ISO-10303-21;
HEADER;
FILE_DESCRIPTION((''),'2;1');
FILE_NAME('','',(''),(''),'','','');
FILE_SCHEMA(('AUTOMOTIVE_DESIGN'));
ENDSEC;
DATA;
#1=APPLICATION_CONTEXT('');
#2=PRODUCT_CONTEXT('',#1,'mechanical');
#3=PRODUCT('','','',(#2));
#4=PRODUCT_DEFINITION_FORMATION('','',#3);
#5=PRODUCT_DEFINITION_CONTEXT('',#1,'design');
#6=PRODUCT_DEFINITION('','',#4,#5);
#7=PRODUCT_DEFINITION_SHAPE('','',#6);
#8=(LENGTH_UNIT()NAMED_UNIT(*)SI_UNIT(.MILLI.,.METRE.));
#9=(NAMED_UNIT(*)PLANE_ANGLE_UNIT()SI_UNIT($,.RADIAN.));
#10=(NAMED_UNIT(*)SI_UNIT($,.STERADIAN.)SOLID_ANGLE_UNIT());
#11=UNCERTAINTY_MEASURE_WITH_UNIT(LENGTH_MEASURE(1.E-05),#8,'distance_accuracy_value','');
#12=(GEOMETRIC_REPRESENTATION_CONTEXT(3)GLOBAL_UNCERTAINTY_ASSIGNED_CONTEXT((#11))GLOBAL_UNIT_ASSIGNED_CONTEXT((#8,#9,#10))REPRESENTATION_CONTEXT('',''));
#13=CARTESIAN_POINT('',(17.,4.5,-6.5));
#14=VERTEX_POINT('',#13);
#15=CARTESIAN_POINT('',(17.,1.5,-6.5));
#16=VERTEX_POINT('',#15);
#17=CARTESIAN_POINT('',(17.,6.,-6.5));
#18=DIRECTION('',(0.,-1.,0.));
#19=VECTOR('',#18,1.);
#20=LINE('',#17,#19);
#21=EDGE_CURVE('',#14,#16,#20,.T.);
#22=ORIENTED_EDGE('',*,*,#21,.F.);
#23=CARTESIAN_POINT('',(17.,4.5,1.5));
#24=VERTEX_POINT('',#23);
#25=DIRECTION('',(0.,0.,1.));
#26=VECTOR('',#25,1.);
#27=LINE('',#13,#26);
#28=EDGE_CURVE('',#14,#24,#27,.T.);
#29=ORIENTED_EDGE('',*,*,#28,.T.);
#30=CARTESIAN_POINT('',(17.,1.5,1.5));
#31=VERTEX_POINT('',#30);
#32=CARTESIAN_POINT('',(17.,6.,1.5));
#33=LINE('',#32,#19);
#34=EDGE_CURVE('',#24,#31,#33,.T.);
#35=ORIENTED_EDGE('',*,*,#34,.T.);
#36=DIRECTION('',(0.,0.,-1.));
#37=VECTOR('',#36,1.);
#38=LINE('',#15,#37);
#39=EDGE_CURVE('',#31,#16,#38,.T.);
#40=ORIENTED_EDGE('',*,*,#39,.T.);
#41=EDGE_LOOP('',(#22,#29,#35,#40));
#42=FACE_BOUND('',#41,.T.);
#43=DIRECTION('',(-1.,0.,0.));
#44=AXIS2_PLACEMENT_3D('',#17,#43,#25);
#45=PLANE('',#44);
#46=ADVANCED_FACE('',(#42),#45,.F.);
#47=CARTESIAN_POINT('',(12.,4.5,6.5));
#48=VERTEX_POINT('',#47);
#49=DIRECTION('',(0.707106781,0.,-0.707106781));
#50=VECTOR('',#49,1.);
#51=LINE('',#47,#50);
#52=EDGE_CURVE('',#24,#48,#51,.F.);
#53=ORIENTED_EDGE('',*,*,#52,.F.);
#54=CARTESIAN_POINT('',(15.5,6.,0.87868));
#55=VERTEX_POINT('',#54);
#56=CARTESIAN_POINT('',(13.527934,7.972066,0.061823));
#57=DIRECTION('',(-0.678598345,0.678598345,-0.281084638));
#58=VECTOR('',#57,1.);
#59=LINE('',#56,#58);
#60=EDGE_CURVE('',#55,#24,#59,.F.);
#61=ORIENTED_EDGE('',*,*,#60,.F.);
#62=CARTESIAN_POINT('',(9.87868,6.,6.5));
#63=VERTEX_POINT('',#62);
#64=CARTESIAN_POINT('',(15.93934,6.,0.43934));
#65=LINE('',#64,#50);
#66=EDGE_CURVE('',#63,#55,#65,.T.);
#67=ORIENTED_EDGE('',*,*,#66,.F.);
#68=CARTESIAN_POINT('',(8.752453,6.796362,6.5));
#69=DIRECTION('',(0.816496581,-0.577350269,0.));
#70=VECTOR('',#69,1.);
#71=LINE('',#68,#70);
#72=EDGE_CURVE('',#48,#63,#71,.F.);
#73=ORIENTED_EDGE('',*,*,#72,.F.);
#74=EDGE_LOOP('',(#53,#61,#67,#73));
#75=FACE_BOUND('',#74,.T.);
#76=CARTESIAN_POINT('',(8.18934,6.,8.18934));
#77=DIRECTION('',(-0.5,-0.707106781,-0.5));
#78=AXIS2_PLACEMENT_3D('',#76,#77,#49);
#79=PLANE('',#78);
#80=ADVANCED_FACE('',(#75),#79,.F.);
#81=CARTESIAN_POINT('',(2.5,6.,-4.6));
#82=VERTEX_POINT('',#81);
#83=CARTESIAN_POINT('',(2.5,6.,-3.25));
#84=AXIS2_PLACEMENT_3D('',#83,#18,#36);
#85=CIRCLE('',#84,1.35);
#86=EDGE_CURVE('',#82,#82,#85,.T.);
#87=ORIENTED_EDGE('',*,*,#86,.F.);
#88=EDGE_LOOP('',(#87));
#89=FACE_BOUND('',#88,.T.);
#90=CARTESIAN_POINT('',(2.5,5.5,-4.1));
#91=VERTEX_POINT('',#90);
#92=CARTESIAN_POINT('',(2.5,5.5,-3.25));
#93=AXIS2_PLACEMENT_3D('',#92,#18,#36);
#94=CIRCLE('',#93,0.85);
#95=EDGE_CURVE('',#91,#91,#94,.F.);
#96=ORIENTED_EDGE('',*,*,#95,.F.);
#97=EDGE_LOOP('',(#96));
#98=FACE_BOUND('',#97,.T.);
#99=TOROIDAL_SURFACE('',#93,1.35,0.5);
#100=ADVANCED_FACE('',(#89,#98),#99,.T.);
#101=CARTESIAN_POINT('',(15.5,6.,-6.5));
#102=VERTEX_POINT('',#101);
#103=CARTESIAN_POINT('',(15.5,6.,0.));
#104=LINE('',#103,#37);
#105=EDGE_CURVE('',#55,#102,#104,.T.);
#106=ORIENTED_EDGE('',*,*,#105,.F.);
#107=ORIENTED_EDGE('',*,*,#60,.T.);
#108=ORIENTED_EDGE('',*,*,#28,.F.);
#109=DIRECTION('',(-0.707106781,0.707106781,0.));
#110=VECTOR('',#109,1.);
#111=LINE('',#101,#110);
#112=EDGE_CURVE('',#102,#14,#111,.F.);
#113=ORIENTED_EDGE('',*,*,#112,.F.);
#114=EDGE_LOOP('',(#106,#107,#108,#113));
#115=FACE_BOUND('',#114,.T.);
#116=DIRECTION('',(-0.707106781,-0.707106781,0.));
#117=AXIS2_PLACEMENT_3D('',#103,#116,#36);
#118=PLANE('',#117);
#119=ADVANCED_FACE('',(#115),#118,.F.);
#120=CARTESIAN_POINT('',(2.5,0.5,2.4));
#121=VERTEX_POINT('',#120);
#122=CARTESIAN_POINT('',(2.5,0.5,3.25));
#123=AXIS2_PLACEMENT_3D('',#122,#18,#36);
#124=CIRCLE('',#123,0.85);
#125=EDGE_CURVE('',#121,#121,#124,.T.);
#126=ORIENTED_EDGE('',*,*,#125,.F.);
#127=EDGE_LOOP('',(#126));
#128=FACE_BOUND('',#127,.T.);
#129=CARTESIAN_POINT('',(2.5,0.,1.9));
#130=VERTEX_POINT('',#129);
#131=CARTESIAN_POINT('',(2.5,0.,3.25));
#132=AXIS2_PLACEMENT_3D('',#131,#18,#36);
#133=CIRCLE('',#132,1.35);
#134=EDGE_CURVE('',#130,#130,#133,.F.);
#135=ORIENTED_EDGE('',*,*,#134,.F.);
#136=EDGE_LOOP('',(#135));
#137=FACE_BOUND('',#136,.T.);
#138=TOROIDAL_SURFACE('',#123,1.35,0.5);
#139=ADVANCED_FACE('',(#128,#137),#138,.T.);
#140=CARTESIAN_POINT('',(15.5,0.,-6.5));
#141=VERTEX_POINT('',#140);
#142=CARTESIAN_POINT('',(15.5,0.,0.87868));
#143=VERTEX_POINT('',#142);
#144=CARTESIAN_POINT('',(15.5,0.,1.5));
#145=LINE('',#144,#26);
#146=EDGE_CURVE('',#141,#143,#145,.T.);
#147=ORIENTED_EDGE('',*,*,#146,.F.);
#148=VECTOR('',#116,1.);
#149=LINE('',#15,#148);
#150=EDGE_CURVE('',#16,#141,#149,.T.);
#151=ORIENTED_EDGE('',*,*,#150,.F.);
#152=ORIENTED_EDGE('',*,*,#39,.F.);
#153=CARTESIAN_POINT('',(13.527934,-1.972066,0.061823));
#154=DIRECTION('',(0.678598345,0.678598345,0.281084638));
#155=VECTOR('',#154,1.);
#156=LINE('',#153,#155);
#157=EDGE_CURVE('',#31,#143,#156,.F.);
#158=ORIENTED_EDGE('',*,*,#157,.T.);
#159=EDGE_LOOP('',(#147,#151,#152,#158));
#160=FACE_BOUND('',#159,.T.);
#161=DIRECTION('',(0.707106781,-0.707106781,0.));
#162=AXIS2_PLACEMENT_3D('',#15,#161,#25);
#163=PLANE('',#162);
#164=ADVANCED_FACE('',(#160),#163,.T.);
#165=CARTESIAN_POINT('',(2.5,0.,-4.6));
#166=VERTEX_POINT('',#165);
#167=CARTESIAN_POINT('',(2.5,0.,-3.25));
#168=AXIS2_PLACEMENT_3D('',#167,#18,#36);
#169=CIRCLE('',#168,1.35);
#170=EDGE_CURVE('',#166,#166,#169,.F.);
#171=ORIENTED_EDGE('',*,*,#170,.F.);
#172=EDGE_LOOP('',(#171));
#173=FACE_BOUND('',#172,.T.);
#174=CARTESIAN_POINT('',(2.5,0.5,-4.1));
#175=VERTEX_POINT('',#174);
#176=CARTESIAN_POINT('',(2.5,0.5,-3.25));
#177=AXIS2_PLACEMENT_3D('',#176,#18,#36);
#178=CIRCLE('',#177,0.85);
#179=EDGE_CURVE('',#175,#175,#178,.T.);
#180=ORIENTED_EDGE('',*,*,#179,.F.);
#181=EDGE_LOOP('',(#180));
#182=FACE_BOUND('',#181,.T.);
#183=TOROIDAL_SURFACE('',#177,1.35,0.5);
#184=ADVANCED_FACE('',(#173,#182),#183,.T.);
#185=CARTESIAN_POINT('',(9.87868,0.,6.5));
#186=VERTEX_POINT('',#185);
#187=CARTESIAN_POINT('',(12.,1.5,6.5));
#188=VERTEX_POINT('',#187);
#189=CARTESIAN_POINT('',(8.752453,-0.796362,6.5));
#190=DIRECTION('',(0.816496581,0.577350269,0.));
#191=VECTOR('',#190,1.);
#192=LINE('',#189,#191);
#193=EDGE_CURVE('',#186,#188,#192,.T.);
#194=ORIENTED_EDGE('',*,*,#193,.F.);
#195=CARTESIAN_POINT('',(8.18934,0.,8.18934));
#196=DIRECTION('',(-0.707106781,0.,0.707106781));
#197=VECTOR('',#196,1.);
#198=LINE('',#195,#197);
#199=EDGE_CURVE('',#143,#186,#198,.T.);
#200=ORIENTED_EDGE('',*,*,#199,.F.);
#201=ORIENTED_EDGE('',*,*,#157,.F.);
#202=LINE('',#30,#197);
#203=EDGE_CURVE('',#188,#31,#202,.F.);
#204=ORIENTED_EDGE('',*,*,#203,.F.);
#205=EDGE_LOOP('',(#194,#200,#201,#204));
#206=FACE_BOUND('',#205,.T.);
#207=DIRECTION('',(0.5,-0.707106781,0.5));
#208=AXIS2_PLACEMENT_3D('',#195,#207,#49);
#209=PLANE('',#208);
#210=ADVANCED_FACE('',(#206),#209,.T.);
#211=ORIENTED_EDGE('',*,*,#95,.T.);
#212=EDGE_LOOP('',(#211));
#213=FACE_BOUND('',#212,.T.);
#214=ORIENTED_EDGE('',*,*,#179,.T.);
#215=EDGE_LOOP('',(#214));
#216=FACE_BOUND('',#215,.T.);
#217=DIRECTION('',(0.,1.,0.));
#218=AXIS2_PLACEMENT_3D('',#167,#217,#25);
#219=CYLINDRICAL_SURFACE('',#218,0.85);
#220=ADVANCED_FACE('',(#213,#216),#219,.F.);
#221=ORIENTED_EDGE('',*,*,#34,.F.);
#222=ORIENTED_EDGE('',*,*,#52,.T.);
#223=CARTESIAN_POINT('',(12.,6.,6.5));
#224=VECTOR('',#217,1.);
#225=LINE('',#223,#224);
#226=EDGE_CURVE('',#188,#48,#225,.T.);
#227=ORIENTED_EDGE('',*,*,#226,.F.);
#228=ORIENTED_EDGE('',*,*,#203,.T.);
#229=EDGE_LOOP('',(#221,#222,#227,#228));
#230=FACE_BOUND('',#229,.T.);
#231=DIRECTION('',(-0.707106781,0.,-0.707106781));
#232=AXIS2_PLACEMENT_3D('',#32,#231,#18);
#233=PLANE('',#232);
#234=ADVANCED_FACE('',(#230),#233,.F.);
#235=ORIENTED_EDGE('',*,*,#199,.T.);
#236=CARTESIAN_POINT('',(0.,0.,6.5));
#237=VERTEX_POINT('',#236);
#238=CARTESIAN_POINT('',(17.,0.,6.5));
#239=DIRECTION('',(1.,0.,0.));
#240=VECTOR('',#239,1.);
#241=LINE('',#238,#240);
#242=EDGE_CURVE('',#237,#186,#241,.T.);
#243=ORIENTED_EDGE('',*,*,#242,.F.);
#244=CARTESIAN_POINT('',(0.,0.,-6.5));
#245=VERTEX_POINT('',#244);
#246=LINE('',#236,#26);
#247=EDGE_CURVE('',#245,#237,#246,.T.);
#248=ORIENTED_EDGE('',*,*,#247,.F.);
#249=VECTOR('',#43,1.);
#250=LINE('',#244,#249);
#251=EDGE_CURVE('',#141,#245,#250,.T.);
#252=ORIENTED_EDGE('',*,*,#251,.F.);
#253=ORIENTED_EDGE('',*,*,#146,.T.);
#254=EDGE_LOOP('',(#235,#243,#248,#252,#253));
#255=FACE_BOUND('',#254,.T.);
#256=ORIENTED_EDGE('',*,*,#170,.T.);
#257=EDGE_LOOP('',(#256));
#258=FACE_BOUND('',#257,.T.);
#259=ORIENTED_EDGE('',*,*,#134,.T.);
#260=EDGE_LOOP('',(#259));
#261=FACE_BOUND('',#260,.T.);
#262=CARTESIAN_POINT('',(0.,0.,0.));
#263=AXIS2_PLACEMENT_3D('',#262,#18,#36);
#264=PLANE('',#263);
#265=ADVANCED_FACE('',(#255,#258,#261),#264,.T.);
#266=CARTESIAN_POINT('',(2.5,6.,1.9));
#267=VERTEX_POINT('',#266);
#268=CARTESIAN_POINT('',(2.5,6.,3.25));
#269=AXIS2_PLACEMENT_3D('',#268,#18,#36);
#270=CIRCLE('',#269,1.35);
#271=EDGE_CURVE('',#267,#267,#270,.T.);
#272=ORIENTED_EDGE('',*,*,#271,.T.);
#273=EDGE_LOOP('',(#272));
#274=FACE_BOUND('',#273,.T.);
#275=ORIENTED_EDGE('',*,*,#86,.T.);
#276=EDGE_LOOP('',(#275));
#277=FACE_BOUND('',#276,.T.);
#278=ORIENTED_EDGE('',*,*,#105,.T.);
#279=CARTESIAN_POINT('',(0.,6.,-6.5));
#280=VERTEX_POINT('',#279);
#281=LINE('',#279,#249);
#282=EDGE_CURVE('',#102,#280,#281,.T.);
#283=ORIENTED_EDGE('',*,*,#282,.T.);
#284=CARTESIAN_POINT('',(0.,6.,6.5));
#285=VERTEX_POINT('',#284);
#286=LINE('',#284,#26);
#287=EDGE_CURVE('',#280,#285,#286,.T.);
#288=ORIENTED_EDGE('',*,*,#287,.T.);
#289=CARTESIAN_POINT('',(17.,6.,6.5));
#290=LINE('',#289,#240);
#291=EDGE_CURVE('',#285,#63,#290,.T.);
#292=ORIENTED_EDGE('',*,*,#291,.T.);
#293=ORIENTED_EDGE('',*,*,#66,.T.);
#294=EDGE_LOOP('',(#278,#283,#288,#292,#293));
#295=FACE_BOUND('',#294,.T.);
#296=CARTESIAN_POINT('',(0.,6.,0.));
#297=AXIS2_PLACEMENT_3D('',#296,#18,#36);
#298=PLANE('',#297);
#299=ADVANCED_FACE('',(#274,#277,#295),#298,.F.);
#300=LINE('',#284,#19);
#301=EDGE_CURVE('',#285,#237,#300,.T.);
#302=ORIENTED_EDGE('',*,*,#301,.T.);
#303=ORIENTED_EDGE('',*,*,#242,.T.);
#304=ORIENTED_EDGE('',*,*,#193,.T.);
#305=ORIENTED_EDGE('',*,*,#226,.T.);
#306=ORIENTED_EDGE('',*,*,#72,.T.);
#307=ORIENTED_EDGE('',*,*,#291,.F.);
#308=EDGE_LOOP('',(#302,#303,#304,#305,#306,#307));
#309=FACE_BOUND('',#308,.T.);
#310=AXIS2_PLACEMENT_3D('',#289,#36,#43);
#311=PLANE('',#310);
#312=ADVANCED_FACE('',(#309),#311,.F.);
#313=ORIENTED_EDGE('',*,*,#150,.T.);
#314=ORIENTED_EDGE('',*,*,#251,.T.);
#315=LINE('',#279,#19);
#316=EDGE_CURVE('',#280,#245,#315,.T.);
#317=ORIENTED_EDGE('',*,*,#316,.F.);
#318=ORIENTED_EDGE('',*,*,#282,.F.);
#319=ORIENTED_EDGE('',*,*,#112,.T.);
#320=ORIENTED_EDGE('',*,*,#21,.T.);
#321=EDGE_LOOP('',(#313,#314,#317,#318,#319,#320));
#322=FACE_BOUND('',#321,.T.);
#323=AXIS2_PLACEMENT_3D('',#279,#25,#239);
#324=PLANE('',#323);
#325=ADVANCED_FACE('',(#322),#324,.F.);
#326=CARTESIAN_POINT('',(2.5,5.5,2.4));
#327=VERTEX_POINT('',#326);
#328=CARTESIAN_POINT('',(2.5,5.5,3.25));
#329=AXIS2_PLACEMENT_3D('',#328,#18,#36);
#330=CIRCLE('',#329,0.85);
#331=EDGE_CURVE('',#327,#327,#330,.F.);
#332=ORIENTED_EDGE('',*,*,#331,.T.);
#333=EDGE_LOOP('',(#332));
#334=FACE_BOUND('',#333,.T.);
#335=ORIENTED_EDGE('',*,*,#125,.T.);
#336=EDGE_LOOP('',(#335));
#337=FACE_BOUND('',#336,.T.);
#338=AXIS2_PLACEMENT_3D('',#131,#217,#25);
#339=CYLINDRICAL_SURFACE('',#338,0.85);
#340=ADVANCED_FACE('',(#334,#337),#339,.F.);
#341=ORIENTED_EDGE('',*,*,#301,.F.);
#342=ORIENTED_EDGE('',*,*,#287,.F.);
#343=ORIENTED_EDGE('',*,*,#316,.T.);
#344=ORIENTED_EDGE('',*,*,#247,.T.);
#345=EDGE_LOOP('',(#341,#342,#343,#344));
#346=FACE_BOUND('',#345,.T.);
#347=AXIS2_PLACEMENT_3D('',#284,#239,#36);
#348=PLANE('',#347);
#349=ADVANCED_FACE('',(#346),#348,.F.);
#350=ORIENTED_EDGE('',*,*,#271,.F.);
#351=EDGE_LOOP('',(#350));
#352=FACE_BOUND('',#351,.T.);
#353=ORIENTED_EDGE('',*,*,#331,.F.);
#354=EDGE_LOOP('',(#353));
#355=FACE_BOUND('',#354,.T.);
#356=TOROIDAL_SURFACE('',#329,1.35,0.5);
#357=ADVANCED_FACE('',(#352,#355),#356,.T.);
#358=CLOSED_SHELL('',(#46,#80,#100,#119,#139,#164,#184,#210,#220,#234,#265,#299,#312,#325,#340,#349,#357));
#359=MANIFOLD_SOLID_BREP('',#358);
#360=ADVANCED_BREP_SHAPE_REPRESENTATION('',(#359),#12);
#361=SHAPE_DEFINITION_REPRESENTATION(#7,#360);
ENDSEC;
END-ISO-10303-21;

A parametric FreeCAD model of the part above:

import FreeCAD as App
import Part
import Sketcher

V = App.Vector


def edges_at(feature, points):
    """Names of the edges that pass closest to the given points."""
    edges = feature.Shape.Edges
    near = lambda p: min(range(len(edges)), key=lambda i: edges[i].distToShape(Part.Vertex(*p))[0])
    return sorted({f"Edge{near(p) + 1}" for p in points})

doc = App.newDocument("Part")
params = doc.addObject("Spreadsheet::Sheet", "Params")
for row, (alias, value) in enumerate([
    ("sketch1_width", "17 mm"),
    ("sketch1_height", "13 mm"),
    ("pad1_length", "6 mm"),
    ("sketch2_diameter", "1.7 mm"),
    ("fillet_radius", "0.5 mm"),
    ("chamfer_size", "5 mm"),
    ("chamfer2_size", "1.5 mm"),
], start=1):
    params.set(f"A{row}", alias)
    params.set(f"B{row}", "=" + value)
    params.setAlias(f"B{row}", alias)

body = doc.addObject("PartDesign::Body", "Body")

# Sketch on XZ plane
sketch1 = body.newObject("Sketcher::SketchObject", "Sketch")
sketch1.AttachmentSupport = (doc.getObject("XZ_Plane"), [""])
sketch1.MapMode = "FlatFace"
sketch1.addGeometry(Part.LineSegment(V(0, -6.5, 0), V(0, 6.5, 0)), False)
sketch1.addGeometry(Part.LineSegment(V(0, 6.5, 0), V(17, 6.5, 0)), False)
sketch1.addGeometry(Part.LineSegment(V(17, 6.5, 0), V(17, -6.5, 0)), False)
sketch1.addGeometry(Part.LineSegment(V(17, -6.5, 0), V(0, -6.5, 0)), False)
sketch1.addConstraint(Sketcher.Constraint("Coincident", 0, 2, 1, 1))
sketch1.addConstraint(Sketcher.Constraint("Coincident", 1, 2, 2, 1))
sketch1.addConstraint(Sketcher.Constraint("Coincident", 2, 2, 3, 1))
sketch1.addConstraint(Sketcher.Constraint("Coincident", 3, 2, 0, 1))
sketch1.addConstraint(Sketcher.Constraint("Vertical", 0))
sketch1.addConstraint(Sketcher.Constraint("Horizontal", 1))
sketch1.addConstraint(Sketcher.Constraint("Vertical", 2))
sketch1.addConstraint(Sketcher.Constraint("Horizontal", 3))
sketch1.addConstraint(Sketcher.Constraint("Symmetric", 0, 2, 3, 2, -1, 1))
sketch1.addConstraint(Sketcher.Constraint("DistanceX", 1, 1, 1, 2, 17.0))
sketch1.addConstraint(Sketcher.Constraint("DistanceY", 0, 1, 0, 2, 13.0))
sketch1.setExpression("Constraints[9]", "Params.sketch1_width")
sketch1.setExpression("Constraints[10]", "Params.sketch1_height")
pad1 = body.newObject("PartDesign::Pad", "Pad")
pad1.Profile = sketch1
pad1.setExpression("Length", "Params.pad1_length")
pad1.Reversed = True

# Sketch on XZ plane
sketch2 = body.newObject("Sketcher::SketchObject", "Sketch001")
sketch2.AttachmentSupport = (doc.getObject("XZ_Plane"), [""])
sketch2.MapMode = "FlatFace"
sketch2.AttachmentOffset = App.Placement(V(0, 0, -6), App.Rotation())
sketch2.addGeometry(Part.Circle(V(2.5, -3.25, 0), V(0, 0, 1), 0.85), False)
sketch2.addGeometry(Part.Circle(V(2.5, 3.25, 0), V(0, 0, 1), 0.85), False)
sketch2.addConstraint(Sketcher.Constraint("Equal", 0, 1))
sketch2.addConstraint(Sketcher.Constraint("Symmetric", 0, 3, 1, 3, -1))
sketch2.addConstraint(Sketcher.Constraint("Diameter", 0, 1.7))
sketch2.addConstraint(Sketcher.Constraint("DistanceX", -1, 1, 0, 3, 2.5))
sketch2.addConstraint(Sketcher.Constraint("DistanceY", 0, 3, 1, 3, 6.5))
sketch2.setExpression("Constraints[2]", "Params.sketch2_diameter")
pocket1 = body.newObject("PartDesign::Pocket", "Pocket")
pocket1.Profile = sketch2
pocket1.Type = "ThroughAll"
pocket1.Midplane = True
doc.recompute()

fillet = body.newObject("PartDesign::Fillet", "Fillet")
fillet.Base = (pocket1, edges_at(pocket1, [
    (2.5, 0, -4.1),
    (2.5, 6, -4.1),
    (2.5, 0, 2.4),
    (2.5, 6, 2.4),
]))
fillet.setExpression("Radius", "Params.fillet_radius")
doc.recompute()

chamfer = body.newObject("PartDesign::Chamfer", "Chamfer")
chamfer.Base = (fillet, edges_at(fillet, [(17, 3, 6.5)]))
chamfer.setExpression("Size", "Params.chamfer_size")
doc.recompute()

chamfer2 = body.newObject("PartDesign::Chamfer", "Chamfer001")
chamfer2.Base = (chamfer, edges_at(chamfer, [
    (17, 0, -2.5),
    (17, 6, -2.5),
    (14.5, 0, 4),
    (14.5, 6, 4),
]))
chamfer2.setExpression("Size", "Params.chamfer2_size")

doc.recompute()
